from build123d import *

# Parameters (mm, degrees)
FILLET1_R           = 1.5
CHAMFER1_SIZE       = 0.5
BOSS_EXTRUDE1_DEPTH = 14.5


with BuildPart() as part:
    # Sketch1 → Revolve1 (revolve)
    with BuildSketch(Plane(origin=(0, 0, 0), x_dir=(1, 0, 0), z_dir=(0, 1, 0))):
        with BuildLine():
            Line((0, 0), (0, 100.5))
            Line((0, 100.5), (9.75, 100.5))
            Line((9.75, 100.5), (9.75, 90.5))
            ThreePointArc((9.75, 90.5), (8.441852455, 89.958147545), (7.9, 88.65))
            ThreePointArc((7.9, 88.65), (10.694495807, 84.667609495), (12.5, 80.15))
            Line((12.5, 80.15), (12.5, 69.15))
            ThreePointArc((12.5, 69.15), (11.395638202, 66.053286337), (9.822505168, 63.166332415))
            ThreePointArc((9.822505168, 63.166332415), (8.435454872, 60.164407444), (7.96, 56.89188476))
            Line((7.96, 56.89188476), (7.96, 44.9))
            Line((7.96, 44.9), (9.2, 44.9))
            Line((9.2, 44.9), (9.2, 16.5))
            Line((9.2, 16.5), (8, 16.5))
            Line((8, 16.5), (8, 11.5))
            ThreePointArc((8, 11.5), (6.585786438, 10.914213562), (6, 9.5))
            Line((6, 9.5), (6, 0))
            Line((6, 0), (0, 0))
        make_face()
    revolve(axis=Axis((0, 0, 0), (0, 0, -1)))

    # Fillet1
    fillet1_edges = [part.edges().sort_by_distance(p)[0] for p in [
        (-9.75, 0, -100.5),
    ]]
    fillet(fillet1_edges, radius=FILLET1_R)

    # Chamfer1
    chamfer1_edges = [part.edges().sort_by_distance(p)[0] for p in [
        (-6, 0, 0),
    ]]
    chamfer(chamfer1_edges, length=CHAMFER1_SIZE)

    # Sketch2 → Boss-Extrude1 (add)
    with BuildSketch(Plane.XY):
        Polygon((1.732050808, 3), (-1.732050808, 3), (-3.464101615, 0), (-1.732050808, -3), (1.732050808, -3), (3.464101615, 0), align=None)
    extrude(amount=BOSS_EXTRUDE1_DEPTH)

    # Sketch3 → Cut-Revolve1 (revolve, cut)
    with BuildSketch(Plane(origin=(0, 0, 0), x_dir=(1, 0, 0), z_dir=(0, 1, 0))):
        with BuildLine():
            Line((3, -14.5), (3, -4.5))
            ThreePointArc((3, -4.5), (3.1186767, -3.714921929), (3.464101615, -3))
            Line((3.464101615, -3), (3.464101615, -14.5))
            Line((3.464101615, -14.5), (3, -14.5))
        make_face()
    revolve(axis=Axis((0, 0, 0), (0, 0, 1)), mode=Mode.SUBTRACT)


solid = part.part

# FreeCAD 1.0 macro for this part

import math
import FreeCAD as App
import Part
import Sketcher

V = App.Vector
Q = App.Units.Quantity


def edges_at(feature, points):
    """Names of the edges that pass closest to the given points."""
    edges = feature.Shape.Edges
    near = lambda p: min(range(len(edges)), key=lambda i: edges[i].distToShape(Part.Vertex(*p))[0])
    return sorted({f"Edge{near(p) + 1}" for p in points})


def add_polygon(sketch, points):
    """Adds a closed chain of lines whose ends are joined by coincident constraints."""
    first, n = sketch.GeometryCount, len(points)
    for a, b in zip(points, points[1:] + points[:1]):
        sketch.addGeometry(Part.LineSegment(App.Vector(*a, 0), App.Vector(*b, 0)), False)
    for i in range(n):
        sketch.addConstraint(Sketcher.Constraint("Coincident", first + i, 2, first + (i + 1) % n, 1))

doc = App.newDocument("Part")
body = doc.addObject("PartDesign::Body", "Body")

sketch1 = body.newObject("Sketcher::SketchObject", "Sketch")
sketch1.AttachmentSupport = (doc.getObject("XZ_Plane"), [""])
sketch1.MapMode = "FlatFace"
sketch1.addGeometry([
    Part.LineSegment(V(0, -100.5, 0), V(0, 0, 0)),
    Part.LineSegment(V(0, 0, 0), V(6, 0, 0)),
    Part.LineSegment(V(6, 0, 0), V(6, -9.5, 0)),
    Part.ArcOfCircle(Part.Circle(V(8, -9.5, 0), V(0, 0, 1), 2), math.radians(-180), math.radians(-90)),
    Part.LineSegment(V(8, -11.5, 0), V(8, -16.5, 0)),
    Part.LineSegment(V(8, -16.5, 0), V(9.2, -16.5, 0)),
    Part.LineSegment(V(9.2, -16.5, 0), V(9.2, -44.9, 0)),
    Part.LineSegment(V(9.2, -44.9, 0), V(8, -44.9, 0)),
    Part.LineSegment(V(8, -44.9, 0), V(8, -56.9, 0)),
    Part.ArcOfCircle(Part.Circle(V(19.5, -56.9, 0), V(0, 0, 1), 11.5), math.radians(-180), math.radians(-147)),
    Part.ArcOfCircle(Part.Circle(V(-7.8, -74.7, 0), V(0, 0, 1), 21), math.radians(15.15), math.radians(33.07)),
    Part.LineSegment(V(12.5, -69.2, 0), V(12.5, -80.2, 0)),
    Part.ArcOfCircle(Part.Circle(V(-7.8, -74.7, 0), V(0, 0, 1), 21), math.radians(-42), math.radians(-15)),
    Part.ArcOfCircle(Part.Circle(V(9.8, -88.6, 0), V(0, 0, 1), 1.9), math.radians(-180), math.radians(-90)),
    Part.LineSegment(V(9.8, -90.5, 0), V(9.8, -100.5, 0)),
    Part.LineSegment(V(9.8, -100.5, 0), V(0, -100.5, 0)),
], False)
sketch1.addConstraint([
    Sketcher.Constraint("Coincident", 0, 2, 1, 1),
    Sketcher.Constraint("Coincident", 1, 2, 2, 1),
    Sketcher.Constraint("Tangent", 2, 2, 3, 1),
    Sketcher.Constraint("Coincident", 3, 2, 4, 1),
    Sketcher.Constraint("Coincident", 4, 2, 5, 1),
    Sketcher.Constraint("Coincident", 5, 2, 6, 1),
    Sketcher.Constraint("Coincident", 6, 2, 7, 1),
    Sketcher.Constraint("Coincident", 7, 2, 8, 1),
    Sketcher.Constraint("Tangent", 8, 2, 9, 1),
    Sketcher.Constraint("Tangent", 9, 2, 10, 2),
    Sketcher.Constraint("Coincident", 10, 1, 11, 1),
    Sketcher.Constraint("Coincident", 11, 2, 12, 2),
    Sketcher.Constraint("Coincident", 12, 1, 13, 1),
    Sketcher.Constraint("Coincident", 13, 2, 14, 1),
    Sketcher.Constraint("Coincident", 14, 2, 15, 1),
    Sketcher.Constraint("Coincident", 15, 2, 0, 1),
    Sketcher.Constraint("Vertical", 0),
    Sketcher.Constraint("Horizontal", 1),
    Sketcher.Constraint("Vertical", 2),
    Sketcher.Constraint("Vertical", 4),
    Sketcher.Constraint("Horizontal", 5),
    Sketcher.Constraint("Vertical", 6),
    Sketcher.Constraint("Horizontal", 7),
    Sketcher.Constraint("Vertical", 8),
    Sketcher.Constraint("Vertical", 11),
    Sketcher.Constraint("Vertical", 14),
    Sketcher.Constraint("Horizontal", 15),
    Sketcher.Constraint("Coincident", 0, 2, -1, 1),
    Sketcher.Constraint("Coincident", 12, 3, 10, 3),
    Sketcher.Constraint("Equal", 10, 12),
    Sketcher.Constraint("Horizontal", 13, 3, 12, 1),
    Sketcher.Constraint("Radius", 3, 2.0),
    Sketcher.Constraint("Radius", 9, 11.5),
    Sketcher.Constraint("DistanceX", 1, 1, 1, 2, 6.0),
    Sketcher.Constraint("DistanceY", 4, 2, 4, 1, 5.0),
    Sketcher.Constraint("DistanceY", 11, 2, 11, 1, 11.0),
    Sketcher.Constraint("DistanceY", 14, 2, 14, 1, 10.0),
    Sketcher.Constraint("Radius", 13, 1.85),
    Sketcher.Constraint("DistanceX", 5, 1, 5, 2, 1.2),
    Sketcher.Constraint("DistanceY", 0, 1, 0, 2, 100.5),
    Sketcher.Constraint("DistanceY", 2, 2, 2, 1, 9.5),
    Sketcher.Constraint("DistanceY", 6, 2, 6, 1, 28.4),
    Sketcher.Constraint("DistanceX", -1, 1, 3, 2, 8.0),
    Sketcher.Constraint("DistanceY", 13, 3, 12, 3, 14.0),
    Sketcher.Constraint("DistanceX", 7, 2, 7, 1, 1.24),
    Sketcher.Constraint("DistanceX", 15, 2, 15, 1, 9.75),
    Sketcher.Constraint("DistanceX", -1, 1, 10, 1, 12.5),
    Sketcher.Constraint("DistanceX", -1, 1, 12, 1, 7.9),
])
revolution = body.newObject("PartDesign::Revolution", "Revolution")
revolution.Profile = sketch1
revolution.ReferenceAxis = (sketch1, ["V_Axis"])
revolution.Angle = 360
doc.recompute()

fillet = body.newObject("PartDesign::Fillet", "Fillet")
fillet.Base = (revolution, edges_at(revolution, [(-9.75, 0, -100.5)]))
fillet.Radius = 1.5
doc.recompute()

chamfer = body.newObject("PartDesign::Chamfer", "Chamfer")
chamfer.Base = (fillet, edges_at(fillet, [(-6, 0, 0)]))
chamfer.Size = 0.5

sketch2 = body.newObject("Sketcher::SketchObject", "Sketch001")
sketch2.AttachmentSupport = (doc.getObject("XY_Plane"), [""])
sketch2.MapMode = "FlatFace"
add_polygon(sketch2, [(1.7, 3), (-1.7, 3), (-3.5, 0), (-1.7, -3), (1.7, -3), (3.5, 0)])
sketch2.addConstraint([
    Sketcher.Constraint("Horizontal", 0),
    Sketcher.Constraint("Horizontal", 3),
    Sketcher.Constraint("Symmetric", 0, 2, 3, 2, -1, 1),
    Sketcher.Constraint("Symmetric", 1, 2, 4, 2, -1, 1),
    Sketcher.Constraint("PointOnObject", 1, 2, -1),
    Sketcher.Constraint("Parallel", 2, 5),
    Sketcher.Constraint("Vertical", 0, 2, 2, 2),
    Sketcher.Constraint("Angle", 1, Q("-120 deg")),
    Sketcher.Constraint("DistanceY", -1, 1, 0, 2, 3.0),
    Sketcher.Constraint("DistanceX", 0, 2, 0, 1, 3.464102),
])
pad1 = body.newObject("PartDesign::Pad", "Pad")
pad1.Profile = sketch2
pad1.Length = 14.5

sketch3 = body.newObject("Sketcher::SketchObject", "Sketch002")
sketch3.AttachmentSupport = (doc.getObject("XZ_Plane"), [""])
sketch3.MapMode = "FlatFace"
sketch3.addGeometry([
    Part.LineSegment(V(3, 4.5, 0), V(3, 14.5, 0)),
    Part.LineSegment(V(3, 14.5, 0), V(3.46, 14.5, 0)),
    Part.LineSegment(V(3.46, 14.5, 0), V(3.46, 3, 0)),
    Part.ArcOfCircle(Part.Circle(V(5.66, 4.5, 0), V(0, 0, 1), 2.66), math.radians(180), math.radians(214)),
], False)
sketch3.addConstraint([
    Sketcher.Constraint("Coincident", 0, 2, 1, 1),
    Sketcher.Constraint("Coincident", 1, 2, 2, 1),
    Sketcher.Constraint("Coincident", 2, 2, 3, 2),
    Sketcher.Constraint("Tangent", 3, 1, 0, 1),
    Sketcher.Constraint("Vertical", 0),
    Sketcher.Constraint("Horizontal", 1),
    Sketcher.Constraint("Vertical", 2),
    Sketcher.Constraint("DistanceY", 0, 1, 0, 2, 10.0),
    Sketcher.Constraint("DistanceY", 2, 2, 2, 1, 11.5),
    Sketcher.Constraint("DistanceX", -1, 1, 0, 2, 3.0),
    Sketcher.Constraint("DistanceY", -1, 1, 2, 2, 3.0),
    Sketcher.Constraint("Radius", 3, 2.656089),
])
groove = body.newObject("PartDesign::Groove", "Groove")
groove.Profile = sketch3
groove.ReferenceAxis = (sketch3, ["V_Axis"])
groove.Angle = 360

doc.recompute()
